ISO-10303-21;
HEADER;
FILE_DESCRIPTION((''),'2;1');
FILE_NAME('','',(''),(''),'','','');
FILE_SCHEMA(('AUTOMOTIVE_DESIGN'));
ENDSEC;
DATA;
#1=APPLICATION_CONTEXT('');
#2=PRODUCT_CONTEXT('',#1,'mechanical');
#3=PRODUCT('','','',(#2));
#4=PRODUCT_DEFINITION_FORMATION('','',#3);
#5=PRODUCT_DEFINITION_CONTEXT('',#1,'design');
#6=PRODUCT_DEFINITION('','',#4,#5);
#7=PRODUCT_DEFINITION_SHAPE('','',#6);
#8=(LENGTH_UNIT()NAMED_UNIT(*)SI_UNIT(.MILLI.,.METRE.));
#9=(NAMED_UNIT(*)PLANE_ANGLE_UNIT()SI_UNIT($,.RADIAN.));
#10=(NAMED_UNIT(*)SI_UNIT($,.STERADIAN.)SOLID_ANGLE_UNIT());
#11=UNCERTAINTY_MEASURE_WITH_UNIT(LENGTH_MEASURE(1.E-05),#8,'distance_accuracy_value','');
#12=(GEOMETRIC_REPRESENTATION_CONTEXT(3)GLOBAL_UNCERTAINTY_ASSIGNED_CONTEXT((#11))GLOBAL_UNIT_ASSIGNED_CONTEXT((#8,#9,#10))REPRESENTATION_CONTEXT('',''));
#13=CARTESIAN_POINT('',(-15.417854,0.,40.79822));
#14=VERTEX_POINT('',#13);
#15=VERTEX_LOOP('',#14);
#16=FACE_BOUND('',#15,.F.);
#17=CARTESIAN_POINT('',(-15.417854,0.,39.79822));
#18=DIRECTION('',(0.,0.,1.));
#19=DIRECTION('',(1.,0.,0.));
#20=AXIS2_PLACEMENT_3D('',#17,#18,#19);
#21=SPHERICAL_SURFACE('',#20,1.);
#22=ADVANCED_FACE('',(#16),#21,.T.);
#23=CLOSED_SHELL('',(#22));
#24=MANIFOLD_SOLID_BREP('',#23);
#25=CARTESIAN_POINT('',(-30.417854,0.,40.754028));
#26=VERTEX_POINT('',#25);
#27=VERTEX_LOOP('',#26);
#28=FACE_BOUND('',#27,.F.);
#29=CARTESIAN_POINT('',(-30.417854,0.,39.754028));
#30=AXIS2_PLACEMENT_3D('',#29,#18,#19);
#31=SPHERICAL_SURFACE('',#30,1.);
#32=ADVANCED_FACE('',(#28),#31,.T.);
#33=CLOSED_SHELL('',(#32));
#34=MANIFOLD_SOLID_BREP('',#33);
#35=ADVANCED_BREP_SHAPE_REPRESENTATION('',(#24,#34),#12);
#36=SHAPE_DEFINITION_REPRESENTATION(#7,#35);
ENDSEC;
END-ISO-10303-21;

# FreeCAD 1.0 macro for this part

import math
import FreeCAD as App
import Part
import Sketcher

V = App.Vector
Q = App.Units.Quantity

doc = App.newDocument("Part")
params = doc.addObject("Spreadsheet::Sheet", "Params")
for row, (alias, value) in enumerate([
    ("sketch1_radius", "1 mm"),
    ("revolution_angle", "360 deg"),
    ("sketch2_radius", "1 mm"),
    ("revolution2_angle", "360 deg"),
], start=1):
    params.set(f"A{row}", alias)
    params.set(f"B{row}", "=" + value)
    params.setAlias(f"B{row}", alias)

body = doc.addObject("PartDesign::Body", "Body")

# Sketch on XZ plane
sketch1 = body.newObject("Sketcher::SketchObject", "Sketch")
sketch1.AttachmentSupport = (doc.getObject("XZ_Plane"), [""])
sketch1.MapMode = "FlatFace"
sketch1.addGeometry([
    Part.ArcOfCircle(Part.Circle(V(-30.4, 39.8, 0), V(0, 0, 1), 1), math.radians(-90), math.radians(90)),
    Part.LineSegment(V(-30.4, 40.8, 0), V(-30.4, 38.8, 0)),
], False)
sketch1.addGeometry(Part.LineSegment(V(-30.4, 40.8, 0), V(-30.4, 38.8, 0)), True)  # axis
sketch1.addConstraint([
    Sketcher.Constraint("Coincident", 0, 1, 1, 2),
    Sketcher.Constraint("Coincident", 1, 1, 0, 2),
    Sketcher.Constraint("Vertical", 1),
    Sketcher.Constraint("Vertical", 2),
    Sketcher.Constraint("Coincident", 2, 1, 1, 1),
    Sketcher.Constraint("Equal", 1, 2),
    Sketcher.Constraint("Radius", 0, Q("1 mm")),
    Sketcher.Constraint("DistanceX", 0, 3, -1, 1, Q("30.417854 mm")),
    Sketcher.Constraint("DistanceY", -1, 1, 0, 3, Q("39.754028 mm")),
    Sketcher.Constraint("DistanceX", 0, 1, -1, 1, Q("30.417854 mm")),
])
sketch1.setExpression("Constraints[6]", "Params.sketch1_radius")
revolution = body.newObject("PartDesign::Revolution", "Revolution")
revolution.Profile = sketch1
revolution.ReferenceAxis = (sketch1, ["Axis0"])
revolution.setExpression("Angle", "Params.revolution_angle")
body2 = doc.addObject("PartDesign::Body", "Body001")

# Sketch on XZ plane
sketch2 = body2.newObject("Sketcher::SketchObject", "Sketch001")
sketch2.AttachmentSupport = (doc.getObject("XZ_Plane001"), [""])
sketch2.MapMode = "FlatFace"
sketch2.addGeometry([
    Part.ArcOfCircle(Part.Circle(V(-15.4, 39.8, 0), V(0, 0, 1), 1), math.radians(-90), math.radians(90)),
    Part.LineSegment(V(-15.4, 40.8, 0), V(-15.4, 38.8, 0)),
], False)
sketch2.addGeometry(Part.LineSegment(V(-15.4, 40.8, 0), V(-15.4, 38.8, 0)), True)  # axis
sketch2.addConstraint([
    Sketcher.Constraint("Coincident", 0, 1, 1, 2),
    Sketcher.Constraint("Coincident", 1, 1, 0, 2),
    Sketcher.Constraint("Vertical", 1),
    Sketcher.Constraint("Vertical", 2),
    Sketcher.Constraint("Coincident", 2, 1, 1, 1),
    Sketcher.Constraint("Equal", 1, 2),
    Sketcher.Constraint("Radius", 0, Q("1 mm")),
    Sketcher.Constraint("DistanceY", -1, 1, 0, 3, Q("39.79822 mm")),
    Sketcher.Constraint("DistanceX", 0, 3, -1, 1, Q("15.417854 mm")),
    Sketcher.Constraint("DistanceX", 0, 1, -1, 1, Q("15.417854 mm")),
])
sketch2.setExpression("Constraints[6]", "Params.sketch2_radius")
revolution2 = body2.newObject("PartDesign::Revolution", "Revolution001")
revolution2.Profile = sketch2
revolution2.ReferenceAxis = (sketch2, ["Axis0"])
revolution2.setExpression("Angle", "Params.revolution2_angle")

doc.recompute()
